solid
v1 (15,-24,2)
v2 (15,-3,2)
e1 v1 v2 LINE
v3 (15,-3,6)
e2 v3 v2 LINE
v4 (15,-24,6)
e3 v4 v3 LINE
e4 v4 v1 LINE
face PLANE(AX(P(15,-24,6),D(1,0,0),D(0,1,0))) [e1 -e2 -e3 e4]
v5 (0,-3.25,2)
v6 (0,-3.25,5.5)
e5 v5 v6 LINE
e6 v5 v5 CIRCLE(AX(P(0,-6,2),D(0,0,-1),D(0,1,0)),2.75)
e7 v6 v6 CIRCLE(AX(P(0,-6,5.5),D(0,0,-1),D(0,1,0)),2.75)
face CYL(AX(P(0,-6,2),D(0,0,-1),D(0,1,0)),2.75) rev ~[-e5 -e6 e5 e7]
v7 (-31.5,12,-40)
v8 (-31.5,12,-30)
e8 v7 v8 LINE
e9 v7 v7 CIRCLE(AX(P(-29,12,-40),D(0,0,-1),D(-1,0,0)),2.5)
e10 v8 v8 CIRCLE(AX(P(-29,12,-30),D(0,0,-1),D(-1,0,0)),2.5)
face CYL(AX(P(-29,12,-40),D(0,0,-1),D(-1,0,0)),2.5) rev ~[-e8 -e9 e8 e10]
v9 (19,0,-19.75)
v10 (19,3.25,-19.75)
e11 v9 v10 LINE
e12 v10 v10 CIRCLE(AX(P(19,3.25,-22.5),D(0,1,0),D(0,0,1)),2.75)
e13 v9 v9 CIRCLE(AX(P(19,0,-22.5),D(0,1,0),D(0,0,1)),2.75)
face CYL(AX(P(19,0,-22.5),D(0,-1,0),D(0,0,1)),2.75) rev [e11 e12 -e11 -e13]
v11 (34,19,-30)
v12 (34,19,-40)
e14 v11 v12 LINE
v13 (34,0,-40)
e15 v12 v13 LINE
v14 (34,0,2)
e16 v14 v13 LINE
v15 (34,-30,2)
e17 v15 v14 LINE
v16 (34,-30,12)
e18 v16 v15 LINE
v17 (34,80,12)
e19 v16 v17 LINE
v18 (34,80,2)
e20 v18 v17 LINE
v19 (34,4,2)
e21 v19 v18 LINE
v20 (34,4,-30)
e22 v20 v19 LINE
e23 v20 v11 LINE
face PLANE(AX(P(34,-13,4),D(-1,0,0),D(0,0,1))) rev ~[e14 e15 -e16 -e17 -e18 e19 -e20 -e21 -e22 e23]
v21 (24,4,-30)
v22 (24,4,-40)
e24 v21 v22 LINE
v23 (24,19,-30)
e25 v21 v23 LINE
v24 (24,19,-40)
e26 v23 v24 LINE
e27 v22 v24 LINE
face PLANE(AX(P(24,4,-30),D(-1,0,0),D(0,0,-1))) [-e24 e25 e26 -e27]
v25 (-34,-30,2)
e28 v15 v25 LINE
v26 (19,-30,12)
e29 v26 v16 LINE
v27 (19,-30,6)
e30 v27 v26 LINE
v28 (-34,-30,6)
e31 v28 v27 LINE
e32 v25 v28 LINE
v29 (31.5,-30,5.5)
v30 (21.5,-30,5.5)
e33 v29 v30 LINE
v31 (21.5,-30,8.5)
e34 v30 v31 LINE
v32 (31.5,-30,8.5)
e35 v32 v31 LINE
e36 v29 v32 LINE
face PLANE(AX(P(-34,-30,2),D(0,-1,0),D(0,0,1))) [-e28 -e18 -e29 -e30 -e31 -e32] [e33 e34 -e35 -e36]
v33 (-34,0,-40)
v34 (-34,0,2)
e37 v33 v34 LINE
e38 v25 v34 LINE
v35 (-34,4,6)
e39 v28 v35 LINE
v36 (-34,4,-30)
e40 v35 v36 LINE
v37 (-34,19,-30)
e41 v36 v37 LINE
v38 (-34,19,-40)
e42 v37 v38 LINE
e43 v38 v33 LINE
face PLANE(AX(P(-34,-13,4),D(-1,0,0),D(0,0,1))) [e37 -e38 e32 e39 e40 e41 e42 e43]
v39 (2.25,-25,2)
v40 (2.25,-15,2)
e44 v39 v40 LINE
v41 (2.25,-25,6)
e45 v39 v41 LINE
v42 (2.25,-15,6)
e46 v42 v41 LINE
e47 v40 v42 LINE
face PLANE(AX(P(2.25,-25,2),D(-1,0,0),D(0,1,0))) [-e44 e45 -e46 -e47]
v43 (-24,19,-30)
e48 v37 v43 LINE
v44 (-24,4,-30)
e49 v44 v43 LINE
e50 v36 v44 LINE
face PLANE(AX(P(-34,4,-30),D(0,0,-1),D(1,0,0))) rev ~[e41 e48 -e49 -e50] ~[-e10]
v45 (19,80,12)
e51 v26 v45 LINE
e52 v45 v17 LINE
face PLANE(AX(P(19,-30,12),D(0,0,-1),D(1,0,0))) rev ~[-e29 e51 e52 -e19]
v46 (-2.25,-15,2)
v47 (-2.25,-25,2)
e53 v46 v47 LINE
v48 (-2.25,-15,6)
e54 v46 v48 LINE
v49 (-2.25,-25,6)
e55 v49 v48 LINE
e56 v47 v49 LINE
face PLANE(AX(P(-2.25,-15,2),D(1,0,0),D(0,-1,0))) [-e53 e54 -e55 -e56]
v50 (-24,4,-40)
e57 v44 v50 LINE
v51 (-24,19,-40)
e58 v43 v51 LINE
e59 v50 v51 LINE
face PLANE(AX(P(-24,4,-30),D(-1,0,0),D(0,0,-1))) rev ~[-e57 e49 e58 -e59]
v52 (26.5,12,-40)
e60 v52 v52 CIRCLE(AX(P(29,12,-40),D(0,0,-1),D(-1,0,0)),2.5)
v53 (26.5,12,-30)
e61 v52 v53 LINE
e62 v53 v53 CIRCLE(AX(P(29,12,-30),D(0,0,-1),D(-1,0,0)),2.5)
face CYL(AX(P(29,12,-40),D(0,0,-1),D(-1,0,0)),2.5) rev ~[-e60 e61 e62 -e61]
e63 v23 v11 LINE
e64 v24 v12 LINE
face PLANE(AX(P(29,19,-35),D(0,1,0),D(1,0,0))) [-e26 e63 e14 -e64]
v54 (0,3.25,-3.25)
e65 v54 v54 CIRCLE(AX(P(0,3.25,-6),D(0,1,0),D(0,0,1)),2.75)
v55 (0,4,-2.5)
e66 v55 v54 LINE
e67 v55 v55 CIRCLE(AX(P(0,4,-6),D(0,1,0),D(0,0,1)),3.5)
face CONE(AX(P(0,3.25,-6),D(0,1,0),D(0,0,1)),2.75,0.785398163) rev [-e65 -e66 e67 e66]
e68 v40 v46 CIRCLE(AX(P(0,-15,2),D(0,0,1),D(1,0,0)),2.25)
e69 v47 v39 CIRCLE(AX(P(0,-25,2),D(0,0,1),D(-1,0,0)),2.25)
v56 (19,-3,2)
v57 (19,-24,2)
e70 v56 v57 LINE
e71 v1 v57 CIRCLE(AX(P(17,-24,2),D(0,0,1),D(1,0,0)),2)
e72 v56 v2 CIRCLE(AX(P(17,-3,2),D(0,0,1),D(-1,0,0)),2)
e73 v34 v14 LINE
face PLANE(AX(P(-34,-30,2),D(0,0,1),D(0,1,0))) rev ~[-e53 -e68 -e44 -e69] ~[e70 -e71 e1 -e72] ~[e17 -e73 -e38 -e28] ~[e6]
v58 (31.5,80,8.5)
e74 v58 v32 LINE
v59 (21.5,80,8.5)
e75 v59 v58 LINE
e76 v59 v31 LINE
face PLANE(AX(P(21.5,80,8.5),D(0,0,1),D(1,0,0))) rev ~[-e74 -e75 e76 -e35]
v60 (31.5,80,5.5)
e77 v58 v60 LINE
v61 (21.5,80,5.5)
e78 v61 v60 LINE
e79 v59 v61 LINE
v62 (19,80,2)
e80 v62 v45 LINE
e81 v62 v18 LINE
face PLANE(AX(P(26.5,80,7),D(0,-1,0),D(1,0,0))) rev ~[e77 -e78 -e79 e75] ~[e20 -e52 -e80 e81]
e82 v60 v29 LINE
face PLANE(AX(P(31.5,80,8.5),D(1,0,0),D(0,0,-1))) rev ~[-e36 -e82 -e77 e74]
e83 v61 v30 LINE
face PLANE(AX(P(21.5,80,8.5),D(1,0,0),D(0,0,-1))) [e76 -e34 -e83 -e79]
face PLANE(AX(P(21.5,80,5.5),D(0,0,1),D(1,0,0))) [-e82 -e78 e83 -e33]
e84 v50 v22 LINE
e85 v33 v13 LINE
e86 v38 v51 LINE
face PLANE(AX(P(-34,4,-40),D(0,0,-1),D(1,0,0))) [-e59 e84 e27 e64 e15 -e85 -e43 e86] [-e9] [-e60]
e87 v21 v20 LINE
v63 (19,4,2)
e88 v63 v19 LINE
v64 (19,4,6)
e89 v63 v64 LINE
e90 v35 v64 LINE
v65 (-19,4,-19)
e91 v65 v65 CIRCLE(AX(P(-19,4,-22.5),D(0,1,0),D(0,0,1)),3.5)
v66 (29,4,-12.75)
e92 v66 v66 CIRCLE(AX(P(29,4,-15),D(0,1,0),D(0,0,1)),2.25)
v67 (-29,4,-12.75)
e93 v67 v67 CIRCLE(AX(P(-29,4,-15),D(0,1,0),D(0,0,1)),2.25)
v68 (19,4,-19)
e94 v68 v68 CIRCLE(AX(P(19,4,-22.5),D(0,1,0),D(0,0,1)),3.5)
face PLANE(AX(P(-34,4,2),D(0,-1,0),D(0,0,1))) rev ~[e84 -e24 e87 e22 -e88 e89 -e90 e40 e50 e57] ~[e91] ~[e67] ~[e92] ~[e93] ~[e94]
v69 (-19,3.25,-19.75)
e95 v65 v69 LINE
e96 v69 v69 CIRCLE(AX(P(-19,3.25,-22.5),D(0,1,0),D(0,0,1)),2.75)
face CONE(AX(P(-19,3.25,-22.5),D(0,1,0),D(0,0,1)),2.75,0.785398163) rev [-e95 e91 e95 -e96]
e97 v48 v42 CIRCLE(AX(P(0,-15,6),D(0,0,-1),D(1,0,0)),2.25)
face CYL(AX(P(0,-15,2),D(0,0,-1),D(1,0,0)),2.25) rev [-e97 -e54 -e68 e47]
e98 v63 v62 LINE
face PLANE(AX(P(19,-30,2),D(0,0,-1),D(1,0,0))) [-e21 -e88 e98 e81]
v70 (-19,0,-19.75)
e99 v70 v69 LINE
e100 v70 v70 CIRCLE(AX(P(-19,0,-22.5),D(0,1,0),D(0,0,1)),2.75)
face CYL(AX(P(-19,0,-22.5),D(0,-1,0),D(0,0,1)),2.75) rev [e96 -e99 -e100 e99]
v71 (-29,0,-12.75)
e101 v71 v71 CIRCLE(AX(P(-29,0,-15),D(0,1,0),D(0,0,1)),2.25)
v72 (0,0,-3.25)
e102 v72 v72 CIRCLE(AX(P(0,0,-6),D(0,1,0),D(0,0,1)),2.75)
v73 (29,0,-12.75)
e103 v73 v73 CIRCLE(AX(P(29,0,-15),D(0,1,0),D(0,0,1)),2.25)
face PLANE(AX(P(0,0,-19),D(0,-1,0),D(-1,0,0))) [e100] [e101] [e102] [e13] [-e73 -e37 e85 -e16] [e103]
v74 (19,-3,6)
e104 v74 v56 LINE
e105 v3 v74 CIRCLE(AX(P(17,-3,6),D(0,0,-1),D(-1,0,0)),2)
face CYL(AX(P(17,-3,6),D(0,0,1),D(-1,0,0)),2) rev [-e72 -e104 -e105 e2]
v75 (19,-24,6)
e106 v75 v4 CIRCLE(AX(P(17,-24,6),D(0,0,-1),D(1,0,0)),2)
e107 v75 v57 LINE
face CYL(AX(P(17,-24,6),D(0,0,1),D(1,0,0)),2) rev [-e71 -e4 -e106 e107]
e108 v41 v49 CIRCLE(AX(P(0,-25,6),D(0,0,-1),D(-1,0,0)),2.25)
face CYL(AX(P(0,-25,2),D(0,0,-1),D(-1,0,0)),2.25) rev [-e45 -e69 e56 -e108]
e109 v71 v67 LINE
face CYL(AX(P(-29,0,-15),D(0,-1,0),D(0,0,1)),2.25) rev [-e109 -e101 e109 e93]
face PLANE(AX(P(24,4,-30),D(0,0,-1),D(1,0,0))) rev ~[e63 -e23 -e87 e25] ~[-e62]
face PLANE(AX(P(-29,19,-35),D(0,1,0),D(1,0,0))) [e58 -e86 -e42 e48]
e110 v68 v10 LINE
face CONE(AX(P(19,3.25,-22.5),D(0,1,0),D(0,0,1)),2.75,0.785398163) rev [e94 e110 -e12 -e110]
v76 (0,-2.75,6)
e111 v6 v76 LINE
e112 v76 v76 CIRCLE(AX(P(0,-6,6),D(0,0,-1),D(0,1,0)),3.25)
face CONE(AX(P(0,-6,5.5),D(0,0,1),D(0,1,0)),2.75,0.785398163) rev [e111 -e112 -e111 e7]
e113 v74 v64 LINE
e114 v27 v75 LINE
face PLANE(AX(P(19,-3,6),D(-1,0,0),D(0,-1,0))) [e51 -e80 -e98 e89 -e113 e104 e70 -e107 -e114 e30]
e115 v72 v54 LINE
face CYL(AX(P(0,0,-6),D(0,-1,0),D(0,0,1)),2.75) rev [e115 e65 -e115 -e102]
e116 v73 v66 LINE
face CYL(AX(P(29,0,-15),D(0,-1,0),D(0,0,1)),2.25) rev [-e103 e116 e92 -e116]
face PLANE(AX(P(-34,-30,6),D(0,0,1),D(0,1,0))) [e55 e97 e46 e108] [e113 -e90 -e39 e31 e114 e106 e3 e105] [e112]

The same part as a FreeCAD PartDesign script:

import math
import FreeCAD as App
import Part
import Sketcher
Q = App.Units.Quantity


def edges_at(feature, points):
    """Names of the edges that pass closest to the given points."""
    edges = feature.Shape.Edges
    near = lambda p: min(range(len(edges)), key=lambda i: edges[i].distToShape(Part.Vertex(*p))[0])
    return sorted({f"Edge{near(p) + 1}" for p in points})


def add_polygon(sketch, points):
    """Adds a closed chain of lines whose ends are joined by coincident constraints."""
    first, n = sketch.GeometryCount, len(points)
    for a, b in zip(points, points[1:] + points[:1]):
        sketch.addGeometry(Part.LineSegment(App.Vector(*a, 0), App.Vector(*b, 0)), False)
    for i in range(n):
        sketch.addConstraint(Sketcher.Constraint("Coincident", first + i, 2, first + (i + 1) % n, 1))

doc = App.newDocument("Part")
params = doc.addObject("Spreadsheet::Sheet", "Params")
for row, (alias, value) in enumerate([
    ("sketch1_diameter", "5.5 mm"),
    ("sketch1_diameter2", "4.5 mm"),
    ("sketch1_width", "68 mm"),
    ("sketch1_height", "42 mm"),
    ("pad1_length", "4 mm"),
    ("sketch2_width", "10 mm"),
    ("pad2_length", "15 mm"),
    ("sketch3_diameter", "5 mm"),
    ("chamfer_size", "0.75 mm"),
    ("sketch4_width", "34 mm"),
    ("sketch4_height", "4 mm"),
    ("pad3_length", "68 mm"),
    ("sketch5_diameter", "5.5 mm"),
    ("sketch5_height", "10 mm"),
    ("sketch5_radius", "2.25 mm"),
    ("chamfer2_size", "0.5 mm"),
    ("sketch6_width", "15 mm"),
    ("sketch6_height", "10 mm"),
    ("pad4_length", "110 mm"),
    ("sketch7_radius", "2 mm"),
    ("sketch7_height", "21 mm"),
    ("sketch8_width", "10 mm"),
    ("sketch8_height", "3 mm"),
], start=1):
    params.set(f"A{row}", alias)
    params.set(f"B{row}", "=" + value)
    params.setAlias(f"B{row}", alias)

body = doc.addObject("PartDesign::Body", "Body")

# Sketch on XZ plane
sketch1 = body.newObject("Sketcher::SketchObject", "Sketch")
sketch1.AttachmentSupport = (doc.getObject("XZ_Plane"), [""])
sketch1.MapMode = "FlatFace"
add_polygon(sketch1, [(-34, -40), (-34, 2), (34, 2), (34, -40)])  # lines 0-3
sketch1.addGeometry(Part.Circle(App.Vector(0, -6, 0), App.Vector(0, 0, 1), 2.8), False)  # 4
sketch1.addGeometry(Part.Circle(App.Vector(29, -15, 0), App.Vector(0, 0, 1), 2.2), False)  # 5
sketch1.addGeometry(Part.Circle(App.Vector(19, -22.5, 0), App.Vector(0, 0, 1), 2.8), False)  # 6
sketch1.addGeometry(Part.Circle(App.Vector(-29, -15, 0), App.Vector(0, 0, 1), 2.2), False)  # 7
sketch1.addGeometry(Part.Circle(App.Vector(-19, -22.5, 0), App.Vector(0, 0, 1), 2.8), False)  # 8
sketch1.addConstraint([
    Sketcher.Constraint("Vertical", 0),
    Sketcher.Constraint("Horizontal", 1),
    Sketcher.Constraint("Vertical", 2),
    Sketcher.Constraint("Horizontal", 3),
    Sketcher.Constraint("Equal", 4, 6),
    Sketcher.Constraint("Equal", 5, 7),
    Sketcher.Constraint("Equal", 6, 8),
    Sketcher.Constraint("Symmetric", 5, 3, 7, 3, -2),
    Sketcher.Constraint("Symmetric", 6, 3, 8, 3, -2),
    Sketcher.Constraint("PointOnObject", 4, 3, -2),
    Sketcher.Constraint("Diameter", 4, Q("5.5 mm")),
    Sketcher.Constraint("Diameter", 5, Q("4.5 mm")),
    Sketcher.Constraint("DistanceX", 1, 1, 1, 2, Q("68 mm")),
    Sketcher.Constraint("DistanceY", 0, 1, 0, 2, Q("42 mm")),
    Sketcher.Constraint("DistanceY", 4, 3, -1, 1, Q("6 mm")),
    Sketcher.Constraint("DistanceX", -1, 1, 5, 3, Q("29 mm")),
    Sketcher.Constraint("DistanceY", 5, 3, -1, 1, Q("15 mm")),
    Sketcher.Constraint("DistanceX", -1, 1, 6, 3, Q("19 mm")),
    Sketcher.Constraint("DistanceX", 0, 2, -1, 1, Q("34 mm")),
    Sketcher.Constraint("DistanceY", -1, 1, 0, 2, Q("2 mm")),
    Sketcher.Constraint("DistanceY", 6, 3, -1, 1, Q("22.5 mm")),
])
sketch1.setExpression("Constraints[14]", "Params.sketch1_diameter")
sketch1.setExpression("Constraints[15]", "Params.sketch1_diameter2")
sketch1.setExpression("Constraints[16]", "Params.sketch1_width")
sketch1.setExpression("Constraints[17]", "Params.sketch1_height")
pad1 = body.newObject("PartDesign::Pad", "Pad")
pad1.Profile = sketch1
pad1.setExpression("Length", "Params.pad1_length")
pad1.Reversed = True

# Sketch on XZ plane
sketch2 = body.newObject("Sketcher::SketchObject", "Sketch001")
sketch2.AttachmentSupport = (doc.getObject("XZ_Plane"), [""])
sketch2.MapMode = "FlatFace"
sketch2.AttachmentOffset = App.Placement(App.Vector(0, 0, -4), App.Rotation())
add_polygon(sketch2, [(-34, -40), (-34, -30), (-24, -30), (-24, -40)])  # lines 0-3
add_polygon(sketch2, [(24, -40), (24, -30), (34, -30), (34, -40)])  # lines 4-7
sketch2.addConstraint([
    Sketcher.Constraint("Vertical", 0),
    Sketcher.Constraint("Horizontal", 1),
    Sketcher.Constraint("Vertical", 2),
    Sketcher.Constraint("Horizontal", 3),
    Sketcher.Constraint("Vertical", 4),
    Sketcher.Constraint("Horizontal", 5),
    Sketcher.Constraint("Vertical", 6),
    Sketcher.Constraint("Horizontal", 7),
    Sketcher.Constraint("Symmetric", 1, 2, 4, 2, -2),
    Sketcher.Constraint("Symmetric", 3, 2, 6, 2, -2),
    Sketcher.Constraint("Equal", 7, 0),
    Sketcher.Constraint("DistanceX", 1, 1, 1, 2, Q("10 mm")),
    Sketcher.Constraint("DistanceX", 0, 2, -1, 1, Q("34 mm")),
    Sketcher.Constraint("DistanceY", 0, 2, -1, 1, Q("30 mm")),
])
sketch2.setExpression("Constraints[19]", "Params.sketch2_width")
pad2 = body.newObject("PartDesign::Pad", "Pad001")
pad2.Profile = sketch2
pad2.setExpression("Length", "Params.pad2_length")
pad2.Reversed = True

# Sketch on XY plane
sketch3 = body.newObject("Sketcher::SketchObject", "Sketch002")
sketch3.AttachmentSupport = (doc.getObject("XY_Plane"), [""])
sketch3.MapMode = "FlatFace"
sketch3.AttachmentOffset = App.Placement(App.Vector(0, 0, -40), App.Rotation())
sketch3.addGeometry([
    Part.Circle(App.Vector(29, 12, 0), App.Vector(0, 0, 1), 2.5),
    Part.Circle(App.Vector(-29, 12, 0), App.Vector(0, 0, 1), 2.5),
], False)
sketch3.addConstraint([
    Sketcher.Constraint("Equal", 0, 1),
    Sketcher.Constraint("Symmetric", 0, 3, 1, 3, -2),
    Sketcher.Constraint("Diameter", 0, Q("5 mm")),
    Sketcher.Constraint("DistanceX", -1, 1, 0, 3, Q("29 mm")),
    Sketcher.Constraint("DistanceY", -1, 1, 0, 3, Q("12 mm")),
])
sketch3.setExpression("Constraints[2]", "Params.sketch3_diameter")
pocket1 = body.newObject("PartDesign::Pocket", "Pocket")
pocket1.Profile = sketch3
pocket1.Type = "ThroughAll"
pocket1.Reversed = True
doc.recompute()

chamfer = body.newObject("PartDesign::Chamfer", "Chamfer")
chamfer.Base = (pocket1, edges_at(pocket1, [(-19, 4, -25.25), (19, 4, -25.25), (0, 4, -8.75)]))
chamfer.setExpression("Size", "Params.chamfer_size")

# Sketch on YZ plane
sketch4 = body.newObject("Sketcher::SketchObject", "Sketch003")
sketch4.AttachmentSupport = (doc.getObject("YZ_Plane"), [""])
sketch4.MapMode = "FlatFace"
sketch4.AttachmentOffset = App.Placement(App.Vector(0, 0, -34), App.Rotation())
add_polygon(sketch4, [(4, 2), (-30, 2), (-30, 6), (4, 6)])  # lines 0-3
sketch4.addConstraint([
    Sketcher.Constraint("Horizontal", 0),
    Sketcher.Constraint("Vertical", 1),
    Sketcher.Constraint("Horizontal", 2),
    Sketcher.Constraint("Vertical", 3),
    Sketcher.Constraint("DistanceX", 0, 2, 0, 1, Q("34 mm")),
    Sketcher.Constraint("DistanceY", 1, 1, 1, 2, Q("4 mm")),
    Sketcher.Constraint("DistanceX", 0, 2, -1, 1, Q("30 mm")),
    Sketcher.Constraint("DistanceY", -1, 1, 0, 2, Q("2 mm")),
])
sketch4.setExpression("Constraints[8]", "Params.sketch4_width")
sketch4.setExpression("Constraints[9]", "Params.sketch4_height")
pad3 = body.newObject("PartDesign::Pad", "Pad002")
pad3.Profile = sketch4
pad3.setExpression("Length", "Params.pad3_length")

# Sketch on XY plane
sketch5 = body.newObject("Sketcher::SketchObject", "Sketch004")
sketch5.AttachmentSupport = (doc.getObject("XY_Plane"), [""])
sketch5.MapMode = "FlatFace"
sketch5.AttachmentOffset = App.Placement(App.Vector(0, 0, 2), App.Rotation())
sketch5.addGeometry([
    Part.Circle(App.Vector(0, -6, 0), App.Vector(0, 0, 1), 2.8),  # 0
    Part.LineSegment(App.Vector(-2.2, -25, 0), App.Vector(-2.2, -15, 0)),  # 1
    Part.ArcOfCircle(Part.Circle(App.Vector(0, -15, 0), App.Vector(0, 0, 1), 2.2), math.radians(0), math.radians(180)),  # 2
    Part.LineSegment(App.Vector(2.2, -15, 0), App.Vector(2.2, -25, 0)),  # 3
    Part.ArcOfCircle(Part.Circle(App.Vector(0, -25, 0), App.Vector(0, 0, 1), 2.2), math.radians(180), math.radians(360)),  # 4
], False)
sketch5.addConstraint([
    Sketcher.Constraint("Tangent", 1, 2, 2, 2),
    Sketcher.Constraint("Tangent", 2, 1, 3, 1),
    Sketcher.Constraint("Tangent", 3, 2, 4, 2),
    Sketcher.Constraint("Tangent", 4, 1, 1, 1),
    Sketcher.Constraint("Vertical", 1),
    Sketcher.Constraint("Vertical", 3),
    Sketcher.Constraint("PointOnObject", 0, 3, -2),
    Sketcher.Constraint("PointOnObject", 2, 3, -2),
    Sketcher.Constraint("Diameter", 0, Q("5.5 mm")),
    Sketcher.Constraint("DistanceY", 1, 1, 1, 2, Q("10 mm")),
    Sketcher.Constraint("Radius", 2, Q("2.25 mm")),
    Sketcher.Constraint("DistanceY", 0, 3, -1, 1, Q("6 mm")),
    Sketcher.Constraint("DistanceY", 2, 3, -1, 1, Q("15 mm")),
])
sketch5.setExpression("Constraints[8]", "Params.sketch5_diameter")
sketch5.setExpression("Constraints[9]", "Params.sketch5_height")
sketch5.setExpression("Constraints[10]", "Params.sketch5_radius")
pocket2 = body.newObject("PartDesign::Pocket", "Pocket001")
pocket2.Profile = sketch5
pocket2.Type = "ThroughAll"
pocket2.Reversed = True
doc.recompute()

chamfer2 = body.newObject("PartDesign::Chamfer", "Chamfer001")
chamfer2.Base = (pocket2, edges_at(pocket2, [(0, -8.75, 6)]))
chamfer2.setExpression("Size", "Params.chamfer2_size")

# Sketch on XZ plane
sketch6 = body.newObject("Sketcher::SketchObject", "Sketch005")
sketch6.AttachmentSupport = (doc.getObject("XZ_Plane"), [""])
sketch6.MapMode = "FlatFace"
sketch6.AttachmentOffset = App.Placement(App.Vector(0, 0, 30), App.Rotation())
add_polygon(sketch6, [(19, 12), (19, 2), (34, 2), (34, 12)])  # lines 0-3
sketch6.addConstraint([
    Sketcher.Constraint("Vertical", 0),
    Sketcher.Constraint("Horizontal", 1),
    Sketcher.Constraint("Vertical", 2),
    Sketcher.Constraint("Horizontal", 3),
    Sketcher.Constraint("DistanceX", 1, 1, 1, 2, Q("15 mm")),
    Sketcher.Constraint("DistanceY", 0, 2, 0, 1, Q("10 mm")),
    Sketcher.Constraint("DistanceX", -1, 1, 0, 2, Q("19 mm")),
    Sketcher.Constraint("DistanceY", -1, 1, 0, 2, Q("2 mm")),
])
sketch6.setExpression("Constraints[8]", "Params.sketch6_width")
sketch6.setExpression("Constraints[9]", "Params.sketch6_height")
pad4 = body.newObject("PartDesign::Pad", "Pad003")
pad4.Profile = sketch6
pad4.setExpression("Length", "Params.pad4_length")
pad4.Reversed = True

# Sketch on XY plane
sketch7 = body.newObject("Sketcher::SketchObject", "Sketch006")
sketch7.AttachmentSupport = (doc.getObject("XY_Plane"), [""])
sketch7.MapMode = "FlatFace"
sketch7.AttachmentOffset = App.Placement(App.Vector(0, 0, 6), App.Rotation())
sketch7.addGeometry([
    Part.LineSegment(App.Vector(19, -24, 0), App.Vector(19, -3, 0)),
    Part.ArcOfCircle(Part.Circle(App.Vector(17, -3, 0), App.Vector(0, 0, 1), 2), math.radians(0), math.radians(180)),
    Part.LineSegment(App.Vector(15, -3, 0), App.Vector(15, -24, 0)),
    Part.ArcOfCircle(Part.Circle(App.Vector(17, -24, 0), App.Vector(0, 0, 1), 2), math.radians(180), math.radians(360)),
], False)
sketch7.addConstraint([
    Sketcher.Constraint("Tangent", 0, 2, 1, 1),
    Sketcher.Constraint("Tangent", 1, 2, 2, 1),
    Sketcher.Constraint("Tangent", 2, 2, 3, 1),
    Sketcher.Constraint("Tangent", 3, 2, 0, 1),
    Sketcher.Constraint("Vertical", 0),
    Sketcher.Constraint("Vertical", 2),
    Sketcher.Constraint("Radius", 1, Q("2 mm")),
    Sketcher.Constraint("DistanceY", 0, 1, 0, 2, Q("21 mm")),
    Sketcher.Constraint("DistanceX", -1, 1, 1, 3, Q("17 mm")),
    Sketcher.Constraint("DistanceY", 1, 3, -1, 1, Q("3 mm")),
])
sketch7.setExpression("Constraints[6]", "Params.sketch7_radius")
sketch7.setExpression("Constraints[7]", "Params.sketch7_height")
pocket3 = body.newObject("PartDesign::Pocket", "Pocket002")
pocket3.Profile = sketch7
pocket3.Type = "ThroughAll"

# Sketch on XZ plane
sketch8 = body.newObject("Sketcher::SketchObject", "Sketch007")
sketch8.AttachmentSupport = (doc.getObject("XZ_Plane"), [""])
sketch8.MapMode = "FlatFace"
sketch8.AttachmentOffset = App.Placement(App.Vector(0, 0, -80), App.Rotation())
add_polygon(sketch8, [(21.5, 5.5), (21.5, 8.5), (31.5, 8.5), (31.5, 5.5)])  # lines 0-3
sketch8.addConstraint([
    Sketcher.Constraint("Vertical", 0),
    Sketcher.Constraint("Horizontal", 1),
    Sketcher.Constraint("Vertical", 2),
    Sketcher.Constraint("Horizontal", 3),
    Sketcher.Constraint("DistanceX", 1, 1, 1, 2, Q("10 mm")),
    Sketcher.Constraint("DistanceY", 0, 1, 0, 2, Q("3 mm")),
    Sketcher.Constraint("DistanceX", -1, 1, 0, 2, Q("21.5 mm")),
    Sketcher.Constraint("DistanceY", -1, 1, 0, 2, Q("8.5 mm")),
])
sketch8.setExpression("Constraints[8]", "Params.sketch8_width")
sketch8.setExpression("Constraints[9]", "Params.sketch8_height")
pocket4 = body.newObject("PartDesign::Pocket", "Pocket003")
pocket4.Profile = sketch8
pocket4.Type = "ThroughAll"
pocket4.Reversed = True

doc.recompute()
